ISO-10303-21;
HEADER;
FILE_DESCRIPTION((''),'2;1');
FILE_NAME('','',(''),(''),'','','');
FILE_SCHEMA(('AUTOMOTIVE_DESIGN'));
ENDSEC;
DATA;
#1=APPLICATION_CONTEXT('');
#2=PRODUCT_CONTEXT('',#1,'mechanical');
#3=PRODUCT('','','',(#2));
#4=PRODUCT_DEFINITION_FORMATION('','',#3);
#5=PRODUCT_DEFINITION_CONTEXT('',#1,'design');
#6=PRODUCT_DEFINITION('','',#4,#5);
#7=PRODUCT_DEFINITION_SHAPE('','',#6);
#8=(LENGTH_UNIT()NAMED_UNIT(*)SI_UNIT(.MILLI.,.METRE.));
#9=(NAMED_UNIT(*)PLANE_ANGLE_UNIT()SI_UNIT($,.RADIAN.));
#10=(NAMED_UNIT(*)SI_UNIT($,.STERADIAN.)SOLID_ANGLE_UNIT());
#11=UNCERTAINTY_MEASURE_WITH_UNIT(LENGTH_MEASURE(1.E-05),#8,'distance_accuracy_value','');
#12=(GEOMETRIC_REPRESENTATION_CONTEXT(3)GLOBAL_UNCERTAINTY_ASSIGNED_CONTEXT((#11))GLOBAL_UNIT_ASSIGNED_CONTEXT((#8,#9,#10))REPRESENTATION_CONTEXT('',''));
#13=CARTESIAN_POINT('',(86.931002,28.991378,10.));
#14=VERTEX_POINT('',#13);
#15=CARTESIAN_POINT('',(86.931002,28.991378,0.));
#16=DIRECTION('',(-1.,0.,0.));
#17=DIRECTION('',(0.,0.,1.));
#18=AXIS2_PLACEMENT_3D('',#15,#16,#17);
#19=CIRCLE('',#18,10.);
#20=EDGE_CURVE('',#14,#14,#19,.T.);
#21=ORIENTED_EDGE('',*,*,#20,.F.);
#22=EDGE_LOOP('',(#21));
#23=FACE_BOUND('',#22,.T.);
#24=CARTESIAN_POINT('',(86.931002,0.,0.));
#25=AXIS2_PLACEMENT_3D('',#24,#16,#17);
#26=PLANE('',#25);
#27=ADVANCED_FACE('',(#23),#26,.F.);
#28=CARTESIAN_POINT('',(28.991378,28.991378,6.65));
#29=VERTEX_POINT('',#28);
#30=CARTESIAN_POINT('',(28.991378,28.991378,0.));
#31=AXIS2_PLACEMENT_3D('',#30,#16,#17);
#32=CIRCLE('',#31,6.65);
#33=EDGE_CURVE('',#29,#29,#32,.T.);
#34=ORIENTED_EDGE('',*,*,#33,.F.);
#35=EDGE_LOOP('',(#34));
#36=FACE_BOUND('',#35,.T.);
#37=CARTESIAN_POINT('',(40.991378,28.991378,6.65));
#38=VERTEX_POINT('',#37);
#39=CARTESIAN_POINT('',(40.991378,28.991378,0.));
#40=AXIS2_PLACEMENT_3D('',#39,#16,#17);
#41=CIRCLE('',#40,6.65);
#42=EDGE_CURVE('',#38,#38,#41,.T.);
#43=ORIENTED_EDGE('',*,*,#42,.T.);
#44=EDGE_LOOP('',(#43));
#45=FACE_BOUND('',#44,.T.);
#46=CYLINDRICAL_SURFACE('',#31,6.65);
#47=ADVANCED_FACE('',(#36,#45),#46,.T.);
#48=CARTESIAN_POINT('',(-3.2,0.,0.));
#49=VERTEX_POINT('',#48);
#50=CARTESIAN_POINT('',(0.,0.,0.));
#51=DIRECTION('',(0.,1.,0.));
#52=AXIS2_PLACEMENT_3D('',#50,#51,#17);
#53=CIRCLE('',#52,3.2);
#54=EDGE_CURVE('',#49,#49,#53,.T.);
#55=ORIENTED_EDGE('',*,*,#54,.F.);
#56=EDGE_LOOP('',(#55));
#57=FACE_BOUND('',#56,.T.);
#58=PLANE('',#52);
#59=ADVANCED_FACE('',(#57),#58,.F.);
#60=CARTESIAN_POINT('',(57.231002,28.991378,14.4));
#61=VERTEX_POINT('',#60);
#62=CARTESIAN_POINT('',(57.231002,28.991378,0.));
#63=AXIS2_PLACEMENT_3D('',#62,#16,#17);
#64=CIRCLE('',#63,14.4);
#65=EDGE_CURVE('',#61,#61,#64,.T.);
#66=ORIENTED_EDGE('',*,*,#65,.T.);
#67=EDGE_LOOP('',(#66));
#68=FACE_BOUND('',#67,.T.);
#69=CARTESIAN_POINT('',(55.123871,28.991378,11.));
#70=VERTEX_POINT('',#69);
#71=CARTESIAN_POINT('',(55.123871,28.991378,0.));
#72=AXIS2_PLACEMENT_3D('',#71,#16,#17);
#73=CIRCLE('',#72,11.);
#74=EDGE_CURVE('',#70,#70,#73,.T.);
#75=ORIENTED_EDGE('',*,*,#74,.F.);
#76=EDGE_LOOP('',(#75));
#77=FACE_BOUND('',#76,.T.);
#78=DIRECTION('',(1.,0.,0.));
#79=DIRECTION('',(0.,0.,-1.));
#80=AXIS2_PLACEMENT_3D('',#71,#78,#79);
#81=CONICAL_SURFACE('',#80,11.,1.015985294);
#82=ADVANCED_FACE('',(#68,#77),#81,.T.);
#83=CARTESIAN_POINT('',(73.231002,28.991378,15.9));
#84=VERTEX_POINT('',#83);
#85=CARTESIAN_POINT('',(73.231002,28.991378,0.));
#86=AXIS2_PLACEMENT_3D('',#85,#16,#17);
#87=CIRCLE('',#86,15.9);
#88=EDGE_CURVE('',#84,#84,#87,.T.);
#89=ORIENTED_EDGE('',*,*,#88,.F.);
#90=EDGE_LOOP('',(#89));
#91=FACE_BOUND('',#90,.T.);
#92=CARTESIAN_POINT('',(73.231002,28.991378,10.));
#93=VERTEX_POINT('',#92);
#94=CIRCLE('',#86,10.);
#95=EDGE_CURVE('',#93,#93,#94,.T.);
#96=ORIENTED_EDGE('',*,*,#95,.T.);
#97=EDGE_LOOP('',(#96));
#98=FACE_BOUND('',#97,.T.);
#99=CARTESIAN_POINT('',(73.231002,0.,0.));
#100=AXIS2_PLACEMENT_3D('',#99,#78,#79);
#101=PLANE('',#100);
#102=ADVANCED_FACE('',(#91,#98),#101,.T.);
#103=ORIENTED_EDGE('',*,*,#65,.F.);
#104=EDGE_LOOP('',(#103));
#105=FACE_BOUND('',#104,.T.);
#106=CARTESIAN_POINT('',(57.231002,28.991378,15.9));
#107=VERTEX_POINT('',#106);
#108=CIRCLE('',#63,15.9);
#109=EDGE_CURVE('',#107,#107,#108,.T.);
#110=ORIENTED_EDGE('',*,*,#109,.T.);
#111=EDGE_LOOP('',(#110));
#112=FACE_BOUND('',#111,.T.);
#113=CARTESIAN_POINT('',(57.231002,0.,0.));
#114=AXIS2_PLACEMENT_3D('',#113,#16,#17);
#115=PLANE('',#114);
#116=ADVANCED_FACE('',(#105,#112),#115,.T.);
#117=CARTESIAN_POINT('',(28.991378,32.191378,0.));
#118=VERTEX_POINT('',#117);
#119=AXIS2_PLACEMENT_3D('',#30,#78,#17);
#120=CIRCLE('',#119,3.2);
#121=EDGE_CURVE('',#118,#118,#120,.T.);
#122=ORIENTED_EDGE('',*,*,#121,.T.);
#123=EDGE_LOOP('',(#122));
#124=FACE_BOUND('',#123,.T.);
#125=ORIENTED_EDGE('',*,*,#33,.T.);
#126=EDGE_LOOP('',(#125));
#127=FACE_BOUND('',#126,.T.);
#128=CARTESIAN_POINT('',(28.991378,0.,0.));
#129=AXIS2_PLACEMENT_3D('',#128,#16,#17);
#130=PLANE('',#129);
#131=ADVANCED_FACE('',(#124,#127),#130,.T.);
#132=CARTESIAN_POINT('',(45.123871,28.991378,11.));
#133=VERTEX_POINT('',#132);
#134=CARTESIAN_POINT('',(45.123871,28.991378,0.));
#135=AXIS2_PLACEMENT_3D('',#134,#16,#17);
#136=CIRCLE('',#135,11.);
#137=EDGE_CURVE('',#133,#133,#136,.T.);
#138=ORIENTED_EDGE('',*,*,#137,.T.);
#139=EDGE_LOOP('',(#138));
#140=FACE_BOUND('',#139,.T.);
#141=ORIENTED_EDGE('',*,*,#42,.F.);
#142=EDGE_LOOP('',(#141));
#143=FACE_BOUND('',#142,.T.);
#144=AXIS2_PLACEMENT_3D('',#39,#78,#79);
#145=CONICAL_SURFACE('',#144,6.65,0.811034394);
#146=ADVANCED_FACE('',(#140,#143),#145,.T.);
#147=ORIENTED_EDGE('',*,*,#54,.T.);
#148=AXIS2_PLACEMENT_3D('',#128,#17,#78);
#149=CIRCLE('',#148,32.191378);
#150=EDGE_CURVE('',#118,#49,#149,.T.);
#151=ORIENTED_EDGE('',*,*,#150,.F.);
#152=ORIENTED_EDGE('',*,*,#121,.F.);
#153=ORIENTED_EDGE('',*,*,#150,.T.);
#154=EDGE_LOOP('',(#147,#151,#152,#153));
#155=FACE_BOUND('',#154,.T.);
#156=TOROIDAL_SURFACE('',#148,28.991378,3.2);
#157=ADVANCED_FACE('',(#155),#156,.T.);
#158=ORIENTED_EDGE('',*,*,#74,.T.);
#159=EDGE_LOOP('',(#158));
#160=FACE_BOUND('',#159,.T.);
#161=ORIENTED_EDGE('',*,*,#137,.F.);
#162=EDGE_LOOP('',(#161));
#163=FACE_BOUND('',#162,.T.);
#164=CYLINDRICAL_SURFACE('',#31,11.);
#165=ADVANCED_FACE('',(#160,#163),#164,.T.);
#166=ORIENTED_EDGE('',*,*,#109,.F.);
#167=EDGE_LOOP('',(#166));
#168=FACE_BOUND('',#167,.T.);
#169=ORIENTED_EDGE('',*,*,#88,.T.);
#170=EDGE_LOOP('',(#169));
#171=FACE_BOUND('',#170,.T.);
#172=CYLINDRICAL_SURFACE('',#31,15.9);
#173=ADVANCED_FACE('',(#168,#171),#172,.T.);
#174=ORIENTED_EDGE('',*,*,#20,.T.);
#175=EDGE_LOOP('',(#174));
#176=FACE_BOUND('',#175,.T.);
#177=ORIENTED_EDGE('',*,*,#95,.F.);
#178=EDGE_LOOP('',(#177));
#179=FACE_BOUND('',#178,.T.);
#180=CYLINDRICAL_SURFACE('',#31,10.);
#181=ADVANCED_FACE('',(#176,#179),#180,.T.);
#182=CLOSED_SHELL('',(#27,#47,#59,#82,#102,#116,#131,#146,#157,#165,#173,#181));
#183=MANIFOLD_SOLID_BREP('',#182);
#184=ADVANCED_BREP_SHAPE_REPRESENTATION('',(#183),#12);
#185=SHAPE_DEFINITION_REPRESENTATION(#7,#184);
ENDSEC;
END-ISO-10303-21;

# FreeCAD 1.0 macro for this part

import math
import FreeCAD as App
import Part
import Sketcher

V = App.Vector


def add_polygon(sketch, points):
    """Adds a closed chain of lines whose ends are joined by coincident constraints."""
    first, n = sketch.GeometryCount, len(points)
    for a, b in zip(points, points[1:] + points[:1]):
        sketch.addGeometry(Part.LineSegment(App.Vector(*a, 0), App.Vector(*b, 0)), False)
    for i in range(n):
        sketch.addConstraint(Sketcher.Constraint("Coincident", first + i, 2, first + (i + 1) % n, 1))

doc = App.newDocument("Part")
body = doc.addObject("PartDesign::Body", "Body")

sketch1 = body.newObject("Sketcher::SketchObject", "Sketch")
sketch1.AttachmentSupport = (doc.getObject("XZ_Plane"), [""])
sketch1.MapMode = "FlatFace"
sketch1.addGeometry(Part.Circle(V(0, 0, 0), V(0, 0, 1), 3.2), False)
sketch1.addConstraint(Sketcher.Constraint("Coincident", 0, 3, -1, 1))
sketch1.addConstraint(Sketcher.Constraint("Diameter", 0, 6.4))

sketch2 = body.newObject("Sketcher::SketchObject", "Sketch001")
sketch2.AttachmentSupport = (doc.getObject("XY_Plane"), [""])
sketch2.MapMode = "FlatFace"
sketch2.addGeometry(Part.ArcOfCircle(Part.Circle(V(29, 0, 0), V(0, 0, 1), 29), math.radians(90), math.radians(180)), False)
sketch2.addConstraint(Sketcher.Constraint("Coincident", 0, 2, -1, 1))
sketch2.addConstraint(Sketcher.Constraint("PointOnObject", 0, 3, -1))
sketch2.addConstraint(Sketcher.Constraint("Radius", 0, 28.991378))
sketch2.addConstraint(Sketcher.Constraint("DistanceX", -1, 1, 0, 1, 28.991378))
doc.recompute()

additivepipe = body.newObject("PartDesign::AdditivePipe", "AdditivePipe")
additivepipe.Profile = sketch1
additivepipe.Spine = (sketch2, ["Edge1"])

sketch3 = body.newObject("Sketcher::SketchObject", "Sketch002")
sketch3.AttachmentSupport = (doc.getObject("XY_Plane"), [""])
sketch3.MapMode = "FlatFace"
add_polygon(sketch3, [(29, 35.6), (29, 29), (86.9, 29), (86.9, 39), (73.2, 39), (73.2, 44.9), (57.2, 44.9), (57.2, 43.4), (55.1, 40), (45.1, 40), (41, 35.6)])
sketch3.addGeometry(Part.LineSegment(V(29, 29, 0), V(86.9, 29, 0)), True)
sketch3.addConstraint(Sketcher.Constraint("Vertical", 0))
sketch3.addConstraint(Sketcher.Constraint("Horizontal", 1))
sketch3.addConstraint(Sketcher.Constraint("Vertical", 2))
sketch3.addConstraint(Sketcher.Constraint("Horizontal", 3))
sketch3.addConstraint(Sketcher.Constraint("Vertical", 4))
sketch3.addConstraint(Sketcher.Constraint("Horizontal", 5))
sketch3.addConstraint(Sketcher.Constraint("Vertical", 6))
sketch3.addConstraint(Sketcher.Constraint("Horizontal", 8))
sketch3.addConstraint(Sketcher.Constraint("Horizontal", 10))
sketch3.addConstraint(Sketcher.Constraint("Horizontal", 11))
sketch3.addConstraint(Sketcher.Constraint("Coincident", 11, 1, 0, 2))
sketch3.addConstraint(Sketcher.Constraint("Vertical", 2, 2, 11, 2))
sketch3.addConstraint(Sketcher.Constraint("Equal", 8, 2))
sketch3.addConstraint(Sketcher.Constraint("DistanceX", 5, 2, 5, 1, 16.0))
sketch3.addConstraint(Sketcher.Constraint("DistanceX", 8, 2, 8, 1, 10.0))
sketch3.addConstraint(Sketcher.Constraint("DistanceX", 10, 2, 10, 1, 12.0))
sketch3.addConstraint(Sketcher.Constraint("Distance", 7, 4.0))
sketch3.addConstraint(Sketcher.Constraint("Distance", 9, 6.0))
sketch3.addConstraint(Sketcher.Constraint("DistanceX", 3, 2, 3, 1, 13.7))
sketch3.addConstraint(Sketcher.Constraint("DistanceY", 4, 1, 4, 2, 5.9))
sketch3.addConstraint(Sketcher.Constraint("DistanceY", 6, 2, 6, 1, 1.5))
sketch3.addConstraint(Sketcher.Constraint("DistanceY", 3, 2, 7, 2, 1.0))
sketch3.addConstraint(Sketcher.Constraint("DistanceY", 0, 2, 0, 1, 6.65))
sketch3.addConstraint(Sketcher.Constraint("DistanceX", -1, 1, 1, 2, 86.931002))
sketch3.addConstraint(Sketcher.Constraint("DistanceY", -1, 1, 0, 2, 28.991378))
revolution = body.newObject("PartDesign::Revolution", "Revolution")
revolution.Profile = sketch3
revolution.ReferenceAxis = (sketch3, ["Axis0"])
revolution.Angle = 360

doc.recompute()
